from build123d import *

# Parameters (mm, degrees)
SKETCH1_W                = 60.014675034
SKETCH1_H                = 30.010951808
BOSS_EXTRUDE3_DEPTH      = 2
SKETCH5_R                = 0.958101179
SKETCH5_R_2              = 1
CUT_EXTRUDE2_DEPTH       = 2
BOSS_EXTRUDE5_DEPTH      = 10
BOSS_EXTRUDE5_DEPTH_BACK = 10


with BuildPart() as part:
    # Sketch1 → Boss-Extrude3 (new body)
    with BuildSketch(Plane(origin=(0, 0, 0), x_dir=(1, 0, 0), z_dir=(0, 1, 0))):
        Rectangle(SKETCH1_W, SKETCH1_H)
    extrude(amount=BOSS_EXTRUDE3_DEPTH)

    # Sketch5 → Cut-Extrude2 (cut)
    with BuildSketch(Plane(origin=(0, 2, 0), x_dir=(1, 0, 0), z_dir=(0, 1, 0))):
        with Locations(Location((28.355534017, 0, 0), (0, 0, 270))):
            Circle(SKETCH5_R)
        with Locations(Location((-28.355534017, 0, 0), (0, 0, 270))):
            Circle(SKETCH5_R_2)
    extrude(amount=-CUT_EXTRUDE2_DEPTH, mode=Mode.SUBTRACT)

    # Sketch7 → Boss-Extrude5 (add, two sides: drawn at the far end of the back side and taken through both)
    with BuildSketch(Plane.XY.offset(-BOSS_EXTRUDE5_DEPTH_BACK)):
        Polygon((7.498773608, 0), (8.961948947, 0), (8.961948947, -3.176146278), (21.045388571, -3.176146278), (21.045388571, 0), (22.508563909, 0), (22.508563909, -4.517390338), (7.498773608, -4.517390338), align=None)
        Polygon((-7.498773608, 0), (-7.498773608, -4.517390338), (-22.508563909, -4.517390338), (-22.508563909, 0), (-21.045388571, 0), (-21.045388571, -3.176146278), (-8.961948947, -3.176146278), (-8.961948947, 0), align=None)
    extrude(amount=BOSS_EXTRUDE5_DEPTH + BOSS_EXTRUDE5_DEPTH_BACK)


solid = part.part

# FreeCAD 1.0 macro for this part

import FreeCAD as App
import Part
import Sketcher
from FreeCAD import Vector
Q = App.Units.Quantity


def add_polygon(sketch, points):
    """Adds a closed chain of lines whose ends are joined by coincident constraints."""
    first, n = sketch.GeometryCount, len(points)
    for a, b in zip(points, points[1:] + points[:1]):
        sketch.addGeometry(Part.LineSegment(App.Vector(*a, 0), App.Vector(*b, 0)), False)
    for i in range(n):
        sketch.addConstraint(Sketcher.Constraint("Coincident", first + i, 2, first + (i + 1) % n, 1))

doc = App.newDocument("Part")
body = doc.addObject("PartDesign::Body", "Body")

sketch1 = doc.addObject("Sketcher::SketchObject", "Sketch")
body.addObject(sketch1)
sketch1.AttachmentSupport = (doc.XZ_Plane, [""])
sketch1.MapMode = "FlatFace"
add_polygon(sketch1, [(-30, -15), (-30, 15), (30, 15), (30, -15)])
sketch1.addConstraint(Sketcher.Constraint("Vertical", 0))
sketch1.addConstraint(Sketcher.Constraint("Horizontal", 1))
sketch1.addConstraint(Sketcher.Constraint("Vertical", 2))
sketch1.addConstraint(Sketcher.Constraint("Horizontal", 3))
sketch1.addConstraint(Sketcher.Constraint("Symmetric", 0, 2, 2, 2, -1, 1))
sketch1.addConstraint(Sketcher.Constraint("DistanceY", 0, 1, 0, 2, Q("30.010952 mm")))
sketch1.addConstraint(Sketcher.Constraint("DistanceX", 1, 1, 1, 2, Q("60.014675 mm")))
pad1 = doc.addObject("PartDesign::Pad", "Pad")
body.addObject(pad1)
pad1.Profile = sketch1
pad1.Length = 2
pad1.Reversed = True

sketch2 = doc.addObject("Sketcher::SketchObject", "Sketch001")
body.addObject(sketch2)
sketch2.AttachmentSupport = (doc.XZ_Plane, [""])
sketch2.MapMode = "FlatFace"
sketch2.AttachmentOffset = App.Placement(Vector(0, 0, -2), App.Rotation())
sketch2.addGeometry(Part.Circle(Vector(28.4, 0, 0), Vector(0, 0, 1), 1), False)
sketch2.addGeometry(Part.Circle(Vector(-28.4, 0, 0), Vector(0, 0, 1), 1), False)
sketch2.addConstraint(Sketcher.Constraint("Symmetric", 0, 3, 1, 3, -1, 1))
sketch2.addConstraint(Sketcher.Constraint("PointOnObject", 0, 3, -1))
sketch2.addConstraint(Sketcher.Constraint("Diameter", 1, Q("2 mm")))
sketch2.addConstraint(Sketcher.Constraint("Diameter", 0, Q("1.916202 mm")))
sketch2.addConstraint(Sketcher.Constraint("DistanceX", 1, 3, 0, 3, Q("56.711068 mm")))
pocket1 = doc.addObject("PartDesign::Pocket", "Pocket")
body.addObject(pocket1)
pocket1.Profile = sketch2
pocket1.Length = 2
pocket1.Reversed = True

sketch3 = doc.addObject("Sketcher::SketchObject", "Sketch002")
body.addObject(sketch3)
sketch3.AttachmentSupport = (doc.XY_Plane, [""])
sketch3.MapMode = "FlatFace"
add_polygon(sketch3, [(9, 0), (7.5, 0), (7.5, -4.5), (22.5, -4.5), (22.5, 0), (21, 0), (21, -3.2), (9, -3.2)])
add_polygon(sketch3, [(-7.5, -4.5), (-7.5, 0), (-9, 0), (-9, -3.2), (-21, -3.2), (-21, 0), (-22.5, 0), (-22.5, -4.5)])
sketch3.addConstraint(Sketcher.Constraint("Horizontal", 0))
sketch3.addConstraint(Sketcher.Constraint("Vertical", 1))
sketch3.addConstraint(Sketcher.Constraint("Horizontal", 2))
sketch3.addConstraint(Sketcher.Constraint("Vertical", 3))
sketch3.addConstraint(Sketcher.Constraint("Horizontal", 4))
sketch3.addConstraint(Sketcher.Constraint("Vertical", 5))
sketch3.addConstraint(Sketcher.Constraint("Horizontal", 6))
sketch3.addConstraint(Sketcher.Constraint("Vertical", 7))
sketch3.addConstraint(Sketcher.Constraint("Vertical", 8))
sketch3.addConstraint(Sketcher.Constraint("Horizontal", 9))
sketch3.addConstraint(Sketcher.Constraint("Vertical", 10))
sketch3.addConstraint(Sketcher.Constraint("Horizontal", 11))
sketch3.addConstraint(Sketcher.Constraint("Vertical", 12))
sketch3.addConstraint(Sketcher.Constraint("Horizontal", 13))
sketch3.addConstraint(Sketcher.Constraint("Vertical", 14))
sketch3.addConstraint(Sketcher.Constraint("Horizontal", 15))
sketch3.addConstraint(Sketcher.Constraint("Symmetric", 0, 2, 8, 2, -1, 1))
sketch3.addConstraint(Sketcher.Constraint("Symmetric", 4, 2, 12, 2, -1, 1))
sketch3.addConstraint(Sketcher.Constraint("Symmetric", 7, 2, 9, 2, -2))
sketch3.addConstraint(Sketcher.Constraint("Symmetric", 3, 2, 13, 2, -2))
sketch3.addConstraint(Sketcher.Constraint("Horizontal", 6, 2, 10, 2))
sketch3.addConstraint(Sketcher.Constraint("Horizontal", 2, 2, 14, 2))
sketch3.addConstraint(Sketcher.Constraint("Equal", 0, 4))
sketch3.addConstraint(Sketcher.Constraint("DistanceX", 2, 1, 2, 2, Q("15.00979 mm")))
sketch3.addConstraint(Sketcher.Constraint("DistanceX", 6, 2, 6, 1, Q("12.08344 mm")))
sketch3.addConstraint(Sketcher.Constraint("DistanceY", 1, 2, 1, 1, Q("4.51739 mm")))
sketch3.addConstraint(Sketcher.Constraint("DistanceY", 5, 2, 5, 1, Q("3.176146 mm")))
sketch3.addConstraint(Sketcher.Constraint("DistanceX", -1, 1, 4, 2, Q("21.045389 mm")))
pad2 = doc.addObject("PartDesign::Pad", "Pad001")
body.addObject(pad2)
pad2.Profile = sketch3
pad2.Type = "TwoLengths"
pad2.Length = 10
pad2.Length2 = 10

doc.recompute()
